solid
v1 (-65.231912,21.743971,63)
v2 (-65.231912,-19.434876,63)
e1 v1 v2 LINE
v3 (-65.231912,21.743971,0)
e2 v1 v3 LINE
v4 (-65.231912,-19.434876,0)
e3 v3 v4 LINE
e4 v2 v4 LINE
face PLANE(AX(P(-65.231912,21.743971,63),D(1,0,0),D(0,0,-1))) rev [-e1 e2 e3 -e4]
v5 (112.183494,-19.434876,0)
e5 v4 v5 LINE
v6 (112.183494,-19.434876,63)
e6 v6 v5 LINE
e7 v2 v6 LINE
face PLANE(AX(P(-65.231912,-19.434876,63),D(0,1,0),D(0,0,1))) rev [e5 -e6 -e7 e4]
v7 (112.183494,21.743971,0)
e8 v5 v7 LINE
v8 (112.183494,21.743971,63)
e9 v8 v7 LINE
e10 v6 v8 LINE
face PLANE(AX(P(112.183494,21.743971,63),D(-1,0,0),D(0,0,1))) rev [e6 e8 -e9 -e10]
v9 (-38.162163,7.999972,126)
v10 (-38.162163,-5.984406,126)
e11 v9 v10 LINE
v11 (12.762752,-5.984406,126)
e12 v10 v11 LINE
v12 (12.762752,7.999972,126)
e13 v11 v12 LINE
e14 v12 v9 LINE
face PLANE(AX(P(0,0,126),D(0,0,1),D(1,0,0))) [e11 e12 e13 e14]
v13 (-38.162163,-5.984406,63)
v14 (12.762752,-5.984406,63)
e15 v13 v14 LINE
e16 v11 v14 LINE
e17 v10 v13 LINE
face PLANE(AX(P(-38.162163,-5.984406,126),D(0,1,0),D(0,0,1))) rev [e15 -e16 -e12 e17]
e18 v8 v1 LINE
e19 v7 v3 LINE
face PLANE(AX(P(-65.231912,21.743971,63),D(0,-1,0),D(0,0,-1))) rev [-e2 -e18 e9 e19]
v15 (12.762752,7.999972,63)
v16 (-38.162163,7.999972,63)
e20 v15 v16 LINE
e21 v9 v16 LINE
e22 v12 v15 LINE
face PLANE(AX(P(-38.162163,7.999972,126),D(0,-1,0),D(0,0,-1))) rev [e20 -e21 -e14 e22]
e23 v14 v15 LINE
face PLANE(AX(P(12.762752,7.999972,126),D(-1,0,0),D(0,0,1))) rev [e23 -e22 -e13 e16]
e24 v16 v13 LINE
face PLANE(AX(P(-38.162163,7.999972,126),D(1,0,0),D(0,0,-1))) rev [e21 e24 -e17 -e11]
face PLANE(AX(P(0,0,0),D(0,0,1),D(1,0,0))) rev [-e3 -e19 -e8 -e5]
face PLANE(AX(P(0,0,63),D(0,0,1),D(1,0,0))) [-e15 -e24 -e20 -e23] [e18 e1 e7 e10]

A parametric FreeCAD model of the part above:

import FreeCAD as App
import Part
import Sketcher
from FreeCAD import Vector
Q = App.Units.Quantity

doc = App.newDocument("Part")
body = doc.addObject("PartDesign::Body", "Body")

sketch1 = doc.addObject("Sketcher::SketchObject", "Sketch")
body.addObject(sketch1)
sketch1.AttachmentSupport = (doc.XY_Plane, [""])
sketch1.MapMode = "FlatFace"
sketch1.addGeometry(Part.LineSegment(Vector(-65.231912, 21.743971, 0), Vector(-65.231912, -19.434876, 0)), False)
sketch1.addGeometry(Part.LineSegment(Vector(-65.231912, -19.434876, 0), Vector(112.183494, -19.434876, 0)), False)
sketch1.addGeometry(Part.LineSegment(Vector(112.183494, -19.434876, 0), Vector(112.183494, 21.743971, 0)), False)
sketch1.addGeometry(Part.LineSegment(Vector(112.183494, 21.743971, 0), Vector(-65.231912, 21.743971, 0)), False)
sketch1.addConstraint(Sketcher.Constraint("Coincident", 0, 2, 1, 1))
sketch1.addConstraint(Sketcher.Constraint("Coincident", 1, 2, 2, 1))
sketch1.addConstraint(Sketcher.Constraint("Coincident", 2, 2, 3, 1))
sketch1.addConstraint(Sketcher.Constraint("Coincident", 3, 2, 0, 1))
sketch1.addConstraint(Sketcher.Constraint("Vertical", 0))
sketch1.addConstraint(Sketcher.Constraint("Horizontal", 1))
sketch1.addConstraint(Sketcher.Constraint("Vertical", 2))
sketch1.addConstraint(Sketcher.Constraint("Horizontal", 3))
sketch1.addConstraint(Sketcher.Constraint("DistanceX", 1, 1, 1, 2, Q("177.415406 mm")))
sketch1.addConstraint(Sketcher.Constraint("DistanceY", 0, 2, 0, 1, Q("41.178847 mm")))
sketch1.addConstraint(Sketcher.Constraint("DistanceX", 0, 2, -1, 1, Q("65.231912 mm")))
sketch1.addConstraint(Sketcher.Constraint("DistanceY", -1, 1, 2, 2, Q("21.743971 mm")))
pad1 = doc.addObject("PartDesign::Pad", "Pad")
body.addObject(pad1)
pad1.Profile = sketch1
pad1.Length = 63

sketch2 = doc.addObject("Sketcher::SketchObject", "Sketch001")
body.addObject(sketch2)
sketch2.AttachmentSupport = (doc.XY_Plane, [""])
sketch2.MapMode = "FlatFace"
sketch2.AttachmentOffset = App.Placement(Vector(0, 0, 63), App.Rotation())
sketch2.addGeometry(Part.LineSegment(Vector(-38.162163, 7.999972, 0), Vector(-38.162163, -5.984406, 0)), False)
sketch2.addGeometry(Part.LineSegment(Vector(-38.162163, -5.984406, 0), Vector(12.762752, -5.984406, 0)), False)
sketch2.addGeometry(Part.LineSegment(Vector(12.762752, -5.984406, 0), Vector(12.762752, 7.999972, 0)), False)
sketch2.addGeometry(Part.LineSegment(Vector(12.762752, 7.999972, 0), Vector(-38.162163, 7.999972, 0)), False)
sketch2.addConstraint(Sketcher.Constraint("Coincident", 0, 2, 1, 1))
sketch2.addConstraint(Sketcher.Constraint("Coincident", 1, 2, 2, 1))
sketch2.addConstraint(Sketcher.Constraint("Coincident", 2, 2, 3, 1))
sketch2.addConstraint(Sketcher.Constraint("Coincident", 3, 2, 0, 1))
sketch2.addConstraint(Sketcher.Constraint("Vertical", 0))
sketch2.addConstraint(Sketcher.Constraint("Horizontal", 1))
sketch2.addConstraint(Sketcher.Constraint("Vertical", 2))
sketch2.addConstraint(Sketcher.Constraint("Horizontal", 3))
sketch2.addConstraint(Sketcher.Constraint("DistanceX", 1, 1, 1, 2, Q("50.924915 mm")))
sketch2.addConstraint(Sketcher.Constraint("DistanceY", 0, 2, 0, 1, Q("13.984378 mm")))
sketch2.addConstraint(Sketcher.Constraint("DistanceX", -1, 1, 1, 2, Q("12.762752 mm")))
sketch2.addConstraint(Sketcher.Constraint("DistanceY", 0, 2, -1, 1, Q("5.984406 mm")))
pad2 = doc.addObject("PartDesign::Pad", "Pad001")
body.addObject(pad2)
pad2.Profile = sketch2
pad2.Length = 63

doc.recompute()
